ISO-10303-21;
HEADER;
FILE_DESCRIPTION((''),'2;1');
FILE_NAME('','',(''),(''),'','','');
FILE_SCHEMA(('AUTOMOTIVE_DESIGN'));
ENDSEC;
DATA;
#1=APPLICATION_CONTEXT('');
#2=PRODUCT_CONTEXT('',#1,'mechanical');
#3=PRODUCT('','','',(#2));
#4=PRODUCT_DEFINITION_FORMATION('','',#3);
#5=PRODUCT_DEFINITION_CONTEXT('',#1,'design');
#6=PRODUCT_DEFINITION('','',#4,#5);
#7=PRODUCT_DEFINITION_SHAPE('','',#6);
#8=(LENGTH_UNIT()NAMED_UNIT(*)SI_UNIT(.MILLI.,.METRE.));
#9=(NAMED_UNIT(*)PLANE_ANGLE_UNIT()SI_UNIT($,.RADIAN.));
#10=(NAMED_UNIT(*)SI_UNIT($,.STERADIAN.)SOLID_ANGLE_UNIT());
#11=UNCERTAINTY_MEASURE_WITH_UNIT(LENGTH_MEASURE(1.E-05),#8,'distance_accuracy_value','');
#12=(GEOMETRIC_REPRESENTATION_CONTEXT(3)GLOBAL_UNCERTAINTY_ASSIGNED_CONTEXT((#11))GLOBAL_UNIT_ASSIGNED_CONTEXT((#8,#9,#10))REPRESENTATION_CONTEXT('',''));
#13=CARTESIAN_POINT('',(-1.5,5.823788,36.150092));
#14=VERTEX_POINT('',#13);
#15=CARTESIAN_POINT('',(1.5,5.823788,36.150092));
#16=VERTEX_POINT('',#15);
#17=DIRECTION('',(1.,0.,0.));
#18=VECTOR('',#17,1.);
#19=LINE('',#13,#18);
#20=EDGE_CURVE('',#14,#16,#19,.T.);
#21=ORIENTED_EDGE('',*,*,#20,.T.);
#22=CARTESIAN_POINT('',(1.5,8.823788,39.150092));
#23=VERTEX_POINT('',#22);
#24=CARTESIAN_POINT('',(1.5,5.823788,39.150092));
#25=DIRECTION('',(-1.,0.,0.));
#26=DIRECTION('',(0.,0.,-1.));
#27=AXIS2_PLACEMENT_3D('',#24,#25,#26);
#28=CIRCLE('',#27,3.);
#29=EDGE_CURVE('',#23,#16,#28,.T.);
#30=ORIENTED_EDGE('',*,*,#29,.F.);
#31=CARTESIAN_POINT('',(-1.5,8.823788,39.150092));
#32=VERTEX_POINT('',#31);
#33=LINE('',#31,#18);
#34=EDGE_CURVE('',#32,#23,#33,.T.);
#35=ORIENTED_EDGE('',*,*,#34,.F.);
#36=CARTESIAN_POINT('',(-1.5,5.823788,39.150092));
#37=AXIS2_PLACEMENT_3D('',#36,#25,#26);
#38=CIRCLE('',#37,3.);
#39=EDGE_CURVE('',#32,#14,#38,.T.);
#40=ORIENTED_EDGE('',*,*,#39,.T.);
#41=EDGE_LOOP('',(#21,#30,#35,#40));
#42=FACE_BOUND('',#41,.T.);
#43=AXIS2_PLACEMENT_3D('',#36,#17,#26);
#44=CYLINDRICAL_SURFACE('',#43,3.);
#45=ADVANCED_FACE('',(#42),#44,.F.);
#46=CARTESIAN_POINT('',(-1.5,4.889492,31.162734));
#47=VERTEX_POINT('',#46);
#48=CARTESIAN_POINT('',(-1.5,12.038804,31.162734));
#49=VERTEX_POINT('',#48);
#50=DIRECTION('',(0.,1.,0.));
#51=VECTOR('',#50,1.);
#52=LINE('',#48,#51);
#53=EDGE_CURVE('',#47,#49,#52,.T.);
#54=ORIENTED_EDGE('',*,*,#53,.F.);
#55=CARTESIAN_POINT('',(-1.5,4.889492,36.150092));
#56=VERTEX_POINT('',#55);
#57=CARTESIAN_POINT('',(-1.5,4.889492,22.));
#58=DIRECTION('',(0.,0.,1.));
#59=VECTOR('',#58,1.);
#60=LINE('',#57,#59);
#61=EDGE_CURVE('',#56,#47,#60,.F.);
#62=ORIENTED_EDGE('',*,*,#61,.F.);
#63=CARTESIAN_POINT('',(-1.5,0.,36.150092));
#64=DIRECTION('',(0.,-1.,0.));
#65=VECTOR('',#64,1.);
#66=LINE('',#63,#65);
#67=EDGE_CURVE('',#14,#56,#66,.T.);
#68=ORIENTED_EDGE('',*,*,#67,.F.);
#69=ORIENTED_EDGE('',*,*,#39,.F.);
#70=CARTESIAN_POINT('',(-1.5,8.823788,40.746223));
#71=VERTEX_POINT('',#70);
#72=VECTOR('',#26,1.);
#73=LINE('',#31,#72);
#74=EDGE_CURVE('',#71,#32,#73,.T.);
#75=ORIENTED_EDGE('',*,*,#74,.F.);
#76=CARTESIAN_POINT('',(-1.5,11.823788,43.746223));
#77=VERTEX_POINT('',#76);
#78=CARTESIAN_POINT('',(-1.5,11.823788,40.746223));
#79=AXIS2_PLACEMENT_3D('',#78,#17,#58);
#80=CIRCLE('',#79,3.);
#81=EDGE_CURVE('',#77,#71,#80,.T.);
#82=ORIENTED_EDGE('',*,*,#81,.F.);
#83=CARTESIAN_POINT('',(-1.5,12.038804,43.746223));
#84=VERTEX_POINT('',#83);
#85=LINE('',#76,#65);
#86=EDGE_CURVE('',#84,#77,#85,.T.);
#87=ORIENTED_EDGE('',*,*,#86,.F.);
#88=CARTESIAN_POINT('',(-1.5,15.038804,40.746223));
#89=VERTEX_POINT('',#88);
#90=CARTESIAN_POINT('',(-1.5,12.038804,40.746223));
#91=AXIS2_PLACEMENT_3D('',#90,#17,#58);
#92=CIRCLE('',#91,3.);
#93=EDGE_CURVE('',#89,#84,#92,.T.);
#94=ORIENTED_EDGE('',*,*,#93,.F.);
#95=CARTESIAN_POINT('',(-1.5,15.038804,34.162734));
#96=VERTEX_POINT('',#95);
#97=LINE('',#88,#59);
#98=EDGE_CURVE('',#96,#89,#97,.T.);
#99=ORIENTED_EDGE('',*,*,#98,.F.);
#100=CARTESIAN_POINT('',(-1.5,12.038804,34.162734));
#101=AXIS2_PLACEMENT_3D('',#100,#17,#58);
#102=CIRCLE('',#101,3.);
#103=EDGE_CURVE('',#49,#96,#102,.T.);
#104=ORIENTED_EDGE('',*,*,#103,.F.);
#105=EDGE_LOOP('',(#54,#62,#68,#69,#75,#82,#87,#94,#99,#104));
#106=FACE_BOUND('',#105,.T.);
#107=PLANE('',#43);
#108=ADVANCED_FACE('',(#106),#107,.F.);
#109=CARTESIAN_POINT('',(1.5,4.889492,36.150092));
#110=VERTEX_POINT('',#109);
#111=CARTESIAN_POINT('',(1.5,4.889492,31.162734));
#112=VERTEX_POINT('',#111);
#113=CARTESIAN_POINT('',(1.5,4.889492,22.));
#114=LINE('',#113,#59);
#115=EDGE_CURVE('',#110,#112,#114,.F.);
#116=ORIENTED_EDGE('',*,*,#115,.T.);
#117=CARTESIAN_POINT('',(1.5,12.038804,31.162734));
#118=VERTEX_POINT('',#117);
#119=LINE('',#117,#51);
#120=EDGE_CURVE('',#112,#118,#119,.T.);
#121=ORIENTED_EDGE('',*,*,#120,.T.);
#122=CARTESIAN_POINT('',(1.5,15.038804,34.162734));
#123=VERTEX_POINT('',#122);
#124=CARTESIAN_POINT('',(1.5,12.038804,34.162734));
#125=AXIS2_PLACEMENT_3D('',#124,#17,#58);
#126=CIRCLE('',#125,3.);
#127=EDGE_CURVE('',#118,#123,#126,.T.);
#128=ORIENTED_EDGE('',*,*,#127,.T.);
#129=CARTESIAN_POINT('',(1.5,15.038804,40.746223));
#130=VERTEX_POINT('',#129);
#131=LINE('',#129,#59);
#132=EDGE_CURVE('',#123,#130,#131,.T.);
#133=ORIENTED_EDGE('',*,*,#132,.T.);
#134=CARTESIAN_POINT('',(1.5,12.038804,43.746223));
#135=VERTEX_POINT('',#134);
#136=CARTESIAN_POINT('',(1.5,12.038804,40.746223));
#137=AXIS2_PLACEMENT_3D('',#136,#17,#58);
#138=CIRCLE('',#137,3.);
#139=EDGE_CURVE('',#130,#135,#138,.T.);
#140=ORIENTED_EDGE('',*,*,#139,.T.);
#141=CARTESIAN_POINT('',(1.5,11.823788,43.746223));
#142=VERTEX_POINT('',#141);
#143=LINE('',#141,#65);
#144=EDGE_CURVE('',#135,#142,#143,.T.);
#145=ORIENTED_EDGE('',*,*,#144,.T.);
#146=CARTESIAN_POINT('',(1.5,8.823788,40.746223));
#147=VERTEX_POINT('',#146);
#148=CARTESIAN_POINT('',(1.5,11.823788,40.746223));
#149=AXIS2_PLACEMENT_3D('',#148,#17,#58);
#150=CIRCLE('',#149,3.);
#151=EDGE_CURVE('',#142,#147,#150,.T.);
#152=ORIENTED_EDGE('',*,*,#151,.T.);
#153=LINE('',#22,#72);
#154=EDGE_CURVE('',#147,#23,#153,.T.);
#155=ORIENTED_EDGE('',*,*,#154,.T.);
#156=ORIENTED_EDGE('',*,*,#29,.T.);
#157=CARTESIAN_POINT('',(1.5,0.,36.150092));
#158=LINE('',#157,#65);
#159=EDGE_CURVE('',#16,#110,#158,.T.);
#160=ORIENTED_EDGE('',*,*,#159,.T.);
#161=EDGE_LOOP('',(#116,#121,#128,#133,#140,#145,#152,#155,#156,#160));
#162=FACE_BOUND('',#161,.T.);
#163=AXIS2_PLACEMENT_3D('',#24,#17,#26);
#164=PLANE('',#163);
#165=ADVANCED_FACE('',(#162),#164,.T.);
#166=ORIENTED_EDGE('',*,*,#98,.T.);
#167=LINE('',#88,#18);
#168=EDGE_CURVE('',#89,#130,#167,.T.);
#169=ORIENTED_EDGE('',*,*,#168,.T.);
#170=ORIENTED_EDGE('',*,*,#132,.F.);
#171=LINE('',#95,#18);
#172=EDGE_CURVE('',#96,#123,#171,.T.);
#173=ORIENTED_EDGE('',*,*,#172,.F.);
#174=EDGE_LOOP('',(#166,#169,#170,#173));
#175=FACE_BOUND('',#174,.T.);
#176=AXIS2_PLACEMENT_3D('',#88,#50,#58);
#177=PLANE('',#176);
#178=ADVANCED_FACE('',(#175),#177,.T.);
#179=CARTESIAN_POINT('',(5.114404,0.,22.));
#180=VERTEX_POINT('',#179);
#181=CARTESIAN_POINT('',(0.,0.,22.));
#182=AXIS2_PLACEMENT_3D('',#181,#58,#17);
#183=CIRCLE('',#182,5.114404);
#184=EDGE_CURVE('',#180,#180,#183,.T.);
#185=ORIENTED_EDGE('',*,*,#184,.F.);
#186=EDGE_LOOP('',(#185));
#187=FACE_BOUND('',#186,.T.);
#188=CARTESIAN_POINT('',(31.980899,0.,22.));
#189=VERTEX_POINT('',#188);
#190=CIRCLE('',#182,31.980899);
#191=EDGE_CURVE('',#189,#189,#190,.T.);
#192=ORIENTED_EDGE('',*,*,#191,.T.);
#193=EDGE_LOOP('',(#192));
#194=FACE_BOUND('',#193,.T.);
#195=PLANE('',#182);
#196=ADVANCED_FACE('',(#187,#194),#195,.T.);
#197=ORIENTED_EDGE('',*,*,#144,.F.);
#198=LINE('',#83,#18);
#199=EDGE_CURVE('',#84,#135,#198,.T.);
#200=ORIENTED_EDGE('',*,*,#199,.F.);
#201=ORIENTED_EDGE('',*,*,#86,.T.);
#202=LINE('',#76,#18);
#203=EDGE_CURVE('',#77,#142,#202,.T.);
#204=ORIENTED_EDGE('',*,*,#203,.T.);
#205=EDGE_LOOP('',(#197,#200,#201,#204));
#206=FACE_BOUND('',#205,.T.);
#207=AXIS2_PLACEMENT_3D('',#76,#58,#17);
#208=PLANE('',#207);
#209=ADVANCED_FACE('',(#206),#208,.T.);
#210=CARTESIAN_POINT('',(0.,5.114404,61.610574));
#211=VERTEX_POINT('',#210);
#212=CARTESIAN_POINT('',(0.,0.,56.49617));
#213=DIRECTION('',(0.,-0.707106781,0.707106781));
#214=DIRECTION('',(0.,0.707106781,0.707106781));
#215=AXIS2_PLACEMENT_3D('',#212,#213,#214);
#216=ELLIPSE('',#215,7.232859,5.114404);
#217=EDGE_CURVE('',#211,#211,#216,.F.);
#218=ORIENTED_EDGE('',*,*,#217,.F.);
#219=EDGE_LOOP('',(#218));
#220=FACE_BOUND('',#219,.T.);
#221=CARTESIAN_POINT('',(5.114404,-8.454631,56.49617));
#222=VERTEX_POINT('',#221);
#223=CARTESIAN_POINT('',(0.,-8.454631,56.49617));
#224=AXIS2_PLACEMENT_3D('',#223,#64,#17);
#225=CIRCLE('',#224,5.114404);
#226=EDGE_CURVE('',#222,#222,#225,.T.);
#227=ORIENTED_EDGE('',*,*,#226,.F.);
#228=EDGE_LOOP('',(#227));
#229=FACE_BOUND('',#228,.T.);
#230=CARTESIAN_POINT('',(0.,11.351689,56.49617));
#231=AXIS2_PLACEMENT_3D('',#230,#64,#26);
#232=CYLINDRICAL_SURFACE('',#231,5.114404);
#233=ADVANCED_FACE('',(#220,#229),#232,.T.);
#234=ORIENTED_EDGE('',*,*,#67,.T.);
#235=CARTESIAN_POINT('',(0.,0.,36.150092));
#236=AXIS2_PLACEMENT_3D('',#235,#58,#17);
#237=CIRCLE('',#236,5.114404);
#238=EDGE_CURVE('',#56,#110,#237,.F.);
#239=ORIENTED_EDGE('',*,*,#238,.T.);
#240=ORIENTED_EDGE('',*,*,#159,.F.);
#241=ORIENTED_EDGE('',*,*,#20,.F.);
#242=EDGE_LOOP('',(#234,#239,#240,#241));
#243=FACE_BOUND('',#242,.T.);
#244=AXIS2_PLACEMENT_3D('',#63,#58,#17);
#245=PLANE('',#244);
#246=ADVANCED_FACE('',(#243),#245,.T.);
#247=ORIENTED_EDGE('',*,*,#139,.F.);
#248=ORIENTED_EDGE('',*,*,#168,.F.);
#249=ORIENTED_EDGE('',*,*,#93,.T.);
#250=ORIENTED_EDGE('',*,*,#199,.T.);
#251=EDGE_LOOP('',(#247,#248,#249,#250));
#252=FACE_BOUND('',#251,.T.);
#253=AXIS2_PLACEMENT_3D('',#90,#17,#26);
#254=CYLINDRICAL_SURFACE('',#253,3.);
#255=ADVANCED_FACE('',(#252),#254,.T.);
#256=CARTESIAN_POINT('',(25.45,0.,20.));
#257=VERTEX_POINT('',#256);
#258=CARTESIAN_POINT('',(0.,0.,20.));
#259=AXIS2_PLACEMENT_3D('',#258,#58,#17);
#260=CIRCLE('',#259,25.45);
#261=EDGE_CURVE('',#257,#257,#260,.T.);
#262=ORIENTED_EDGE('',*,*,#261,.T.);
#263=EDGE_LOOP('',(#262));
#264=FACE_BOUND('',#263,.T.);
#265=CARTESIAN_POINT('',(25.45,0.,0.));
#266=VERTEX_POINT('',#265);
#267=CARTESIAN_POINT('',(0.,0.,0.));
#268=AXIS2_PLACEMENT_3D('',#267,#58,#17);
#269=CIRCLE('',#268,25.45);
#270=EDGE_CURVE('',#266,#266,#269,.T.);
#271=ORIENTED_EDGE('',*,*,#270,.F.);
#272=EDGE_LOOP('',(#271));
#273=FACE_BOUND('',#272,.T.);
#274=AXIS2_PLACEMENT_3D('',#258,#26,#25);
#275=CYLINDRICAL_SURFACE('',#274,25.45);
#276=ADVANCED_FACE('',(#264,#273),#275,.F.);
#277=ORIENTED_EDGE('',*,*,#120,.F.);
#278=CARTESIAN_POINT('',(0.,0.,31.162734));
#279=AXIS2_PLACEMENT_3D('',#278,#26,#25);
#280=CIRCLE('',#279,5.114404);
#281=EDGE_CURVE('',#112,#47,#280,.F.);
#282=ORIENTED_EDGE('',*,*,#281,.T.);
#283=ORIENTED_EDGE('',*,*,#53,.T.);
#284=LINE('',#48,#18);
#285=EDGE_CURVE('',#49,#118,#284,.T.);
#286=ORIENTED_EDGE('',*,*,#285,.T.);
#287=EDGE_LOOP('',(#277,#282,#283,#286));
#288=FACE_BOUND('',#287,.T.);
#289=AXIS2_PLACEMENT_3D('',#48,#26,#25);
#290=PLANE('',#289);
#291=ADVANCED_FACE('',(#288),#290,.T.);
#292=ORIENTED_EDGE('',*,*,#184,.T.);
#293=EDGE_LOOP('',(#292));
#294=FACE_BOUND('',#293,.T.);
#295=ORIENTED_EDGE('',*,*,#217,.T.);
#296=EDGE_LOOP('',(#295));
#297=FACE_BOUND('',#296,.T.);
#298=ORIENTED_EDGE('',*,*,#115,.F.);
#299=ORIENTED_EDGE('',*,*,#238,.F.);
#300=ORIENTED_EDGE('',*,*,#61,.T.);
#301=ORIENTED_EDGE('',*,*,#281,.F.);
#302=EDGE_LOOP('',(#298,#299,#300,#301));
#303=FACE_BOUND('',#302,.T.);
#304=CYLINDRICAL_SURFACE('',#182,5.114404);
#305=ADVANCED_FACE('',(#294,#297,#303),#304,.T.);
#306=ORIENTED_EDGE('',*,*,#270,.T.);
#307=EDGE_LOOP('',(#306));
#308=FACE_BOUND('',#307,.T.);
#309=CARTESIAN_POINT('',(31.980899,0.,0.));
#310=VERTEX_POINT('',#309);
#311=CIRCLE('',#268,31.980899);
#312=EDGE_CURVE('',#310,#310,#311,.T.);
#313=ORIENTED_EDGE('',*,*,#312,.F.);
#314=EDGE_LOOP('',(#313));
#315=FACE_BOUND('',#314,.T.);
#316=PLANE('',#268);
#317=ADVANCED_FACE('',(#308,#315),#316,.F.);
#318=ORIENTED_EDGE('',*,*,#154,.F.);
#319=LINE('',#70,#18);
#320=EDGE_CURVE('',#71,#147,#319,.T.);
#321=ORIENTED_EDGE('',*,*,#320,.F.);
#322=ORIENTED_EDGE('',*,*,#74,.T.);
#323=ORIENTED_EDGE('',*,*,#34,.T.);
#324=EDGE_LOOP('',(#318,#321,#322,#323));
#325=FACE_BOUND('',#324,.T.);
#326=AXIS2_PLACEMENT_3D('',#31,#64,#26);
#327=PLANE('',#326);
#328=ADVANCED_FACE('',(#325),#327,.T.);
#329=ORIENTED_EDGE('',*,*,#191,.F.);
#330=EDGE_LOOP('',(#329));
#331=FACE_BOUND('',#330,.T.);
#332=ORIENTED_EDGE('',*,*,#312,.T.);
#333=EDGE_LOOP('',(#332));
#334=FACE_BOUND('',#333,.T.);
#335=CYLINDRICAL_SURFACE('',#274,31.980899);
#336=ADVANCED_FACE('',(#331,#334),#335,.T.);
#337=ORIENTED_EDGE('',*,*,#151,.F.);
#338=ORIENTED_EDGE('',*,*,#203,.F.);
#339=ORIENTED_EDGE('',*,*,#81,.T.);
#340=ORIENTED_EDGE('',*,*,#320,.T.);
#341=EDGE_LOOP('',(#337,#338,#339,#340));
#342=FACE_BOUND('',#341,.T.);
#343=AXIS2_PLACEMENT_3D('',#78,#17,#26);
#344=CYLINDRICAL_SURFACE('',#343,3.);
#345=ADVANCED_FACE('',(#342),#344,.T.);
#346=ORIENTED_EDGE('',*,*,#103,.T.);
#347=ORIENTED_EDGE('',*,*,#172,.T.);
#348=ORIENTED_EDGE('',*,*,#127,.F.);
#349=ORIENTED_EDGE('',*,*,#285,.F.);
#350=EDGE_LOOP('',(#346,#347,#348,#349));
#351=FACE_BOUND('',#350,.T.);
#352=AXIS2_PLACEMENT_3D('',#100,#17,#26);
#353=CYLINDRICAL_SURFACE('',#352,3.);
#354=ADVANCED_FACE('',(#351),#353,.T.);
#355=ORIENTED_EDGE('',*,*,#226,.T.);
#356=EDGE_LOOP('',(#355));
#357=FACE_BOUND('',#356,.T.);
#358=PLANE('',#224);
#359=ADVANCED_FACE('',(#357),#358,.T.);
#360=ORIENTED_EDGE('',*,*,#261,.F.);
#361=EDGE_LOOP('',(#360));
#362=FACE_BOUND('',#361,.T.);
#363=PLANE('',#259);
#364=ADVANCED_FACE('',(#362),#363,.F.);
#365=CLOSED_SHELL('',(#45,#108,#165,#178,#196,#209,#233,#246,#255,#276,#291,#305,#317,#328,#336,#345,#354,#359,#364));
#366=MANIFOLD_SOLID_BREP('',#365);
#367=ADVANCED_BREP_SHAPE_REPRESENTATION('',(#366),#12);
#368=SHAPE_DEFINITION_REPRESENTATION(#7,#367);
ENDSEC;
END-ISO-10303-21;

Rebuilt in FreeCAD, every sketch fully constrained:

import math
import FreeCAD as App
import Part
import Sketcher
from FreeCAD import Vector

doc = App.newDocument("Part")
body = doc.addObject("PartDesign::Body", "Body")

# Sketch on XY plane
sketch1 = doc.addObject("Sketcher::SketchObject", "Sketch")
body.addObject(sketch1)
sketch1.AttachmentSupport = (doc.XY_Plane, [""])
sketch1.MapMode = "FlatFace"
sketch1.addGeometry(Part.Circle(Vector(0, 0, 0), Vector(0, 0, 1), 32), False)
sketch1.addGeometry(Part.Circle(Vector(0, 0, 0), Vector(0, 0, 1), 25), False)
sketch1.addConstraint(Sketcher.Constraint("Coincident", 0, 3, -1, 1))
sketch1.addConstraint(Sketcher.Constraint("Coincident", 1, 3, -1, 1))
sketch1.addConstraint(Sketcher.Constraint("Diameter", 1, 50.9))
sketch1.addConstraint(Sketcher.Constraint("Diameter", 0, 63.961797))
pad1 = doc.addObject("PartDesign::Pad", "Pad")
body.addObject(pad1)
pad1.Profile = sketch1
pad1.Length = 20

# Sketch on XY plane
sketch2 = doc.addObject("Sketcher::SketchObject", "Sketch001")
body.addObject(sketch2)
sketch2.AttachmentSupport = (doc.XY_Plane, [""])
sketch2.MapMode = "FlatFace"
sketch2.AttachmentOffset = App.Placement(Vector(0, 0, 20), App.Rotation())
sketch2.addGeometry(Part.Circle(Vector(0, 0, 0), Vector(0, 0, 1), 32), False)
sketch2.addConstraint(Sketcher.Constraint("Coincident", 0, 3, -1, 1))
sketch2.addConstraint(Sketcher.Constraint("Diameter", 0, 63.961797))
pad2 = doc.addObject("PartDesign::Pad", "Pad001")
body.addObject(pad2)
pad2.Profile = sketch2
pad2.Length = 2

# Sketch on XY plane
sketch3 = doc.addObject("Sketcher::SketchObject", "Sketch002")
body.addObject(sketch3)
sketch3.AttachmentSupport = (doc.XY_Plane, [""])
sketch3.MapMode = "FlatFace"
sketch3.AttachmentOffset = App.Placement(Vector(0, 0, 22), App.Rotation())
sketch3.addGeometry(Part.Circle(Vector(0, 0, 0), Vector(0, 0, 1), 5), False)
sketch3.addConstraint(Sketcher.Constraint("Coincident", 0, 3, -1, 1))
sketch3.addConstraint(Sketcher.Constraint("Diameter", 0, 10.228808))

# Sketch on YZ plane
sketch4 = doc.addObject("Sketcher::SketchObject", "Sketch003")
body.addObject(sketch4)
sketch4.AttachmentSupport = (doc.YZ_Plane, [""])
sketch4.MapMode = "FlatFace"
sketch4.addGeometry(Part.LineSegment(Vector(0, 22, 0), Vector(0, 56, 0)), False)
sketch4.addGeometry(Part.LineSegment(Vector(0, 56, 0), Vector(-8, 56, 0)), False)
sketch4.addConstraint(Sketcher.Constraint("Coincident", 0, 2, 1, 1))
sketch4.addConstraint(Sketcher.Constraint("Vertical", 0))
sketch4.addConstraint(Sketcher.Constraint("Horizontal", 1))
sketch4.addConstraint(Sketcher.Constraint("PointOnObject", 0, 1, -2))
sketch4.addConstraint(Sketcher.Constraint("DistanceY", -1, 1, 0, 1, 22.0))
sketch4.addConstraint(Sketcher.Constraint("DistanceX", 1, 2, 1, 1, 8.454631))
sketch4.addConstraint(Sketcher.Constraint("DistanceY", 0, 1, 0, 2, 34.49617))
doc.recompute()

additivepipe = doc.addObject("PartDesign::AdditivePipe", "AdditivePipe")
body.addObject(additivepipe)
additivepipe.Profile = sketch3
additivepipe.Spine = (sketch4, ["Edge1", "Edge2"])
additivepipe.Transition = "Right corner"

# Sketch on YZ plane
sketch5 = doc.addObject("Sketcher::SketchObject", "Sketch004")
body.addObject(sketch5)
sketch5.AttachmentSupport = (doc.YZ_Plane, [""])
sketch5.MapMode = "FlatFace"
sketch5.addGeometry(Part.LineSegment(Vector(5.82, 36.15, 0), Vector(0, 36.15, 0)), False)
sketch5.addGeometry(Part.LineSegment(Vector(0, 36.15, 0), Vector(0, 31.16, 0)), False)
sketch5.addGeometry(Part.LineSegment(Vector(0, 31.16, 0), Vector(12.04, 31.16, 0)), False)
sketch5.addGeometry(Part.ArcOfCircle(Part.Circle(Vector(12.04, 34.16, 0), Vector(0, 0, 1), 3), math.radians(-90), math.radians(0)), False)
sketch5.addGeometry(Part.LineSegment(Vector(15.04, 34.16, 0), Vector(15.04, 40.75, 0)), False)
sketch5.addGeometry(Part.ArcOfCircle(Part.Circle(Vector(12.04, 40.75, 0), Vector(0, 0, 1), 3), math.radians(0), math.radians(90)), False)
sketch5.addGeometry(Part.LineSegment(Vector(12.04, 43.75, 0), Vector(11.82, 43.75, 0)), False)
sketch5.addGeometry(Part.ArcOfCircle(Part.Circle(Vector(11.82, 40.75, 0), Vector(0, 0, 1), 3), math.radians(90), math.radians(180)), False)
sketch5.addGeometry(Part.LineSegment(Vector(8.82, 40.75, 0), Vector(8.82, 39.15, 0)), False)
sketch5.addGeometry(Part.ArcOfCircle(Part.Circle(Vector(5.82, 39.15, 0), Vector(0, 0, 1), 3), math.radians(-90), math.radians(0)), False)
sketch5.addConstraint(Sketcher.Constraint("Coincident", 0, 2, 1, 1))
sketch5.addConstraint(Sketcher.Constraint("Coincident", 1, 2, 2, 1))
sketch5.addConstraint(Sketcher.Constraint("Tangent", 2, 2, 3, 1))
sketch5.addConstraint(Sketcher.Constraint("Tangent", 3, 2, 4, 1))
sketch5.addConstraint(Sketcher.Constraint("Tangent", 4, 2, 5, 1))
sketch5.addConstraint(Sketcher.Constraint("Tangent", 5, 2, 6, 1))
sketch5.addConstraint(Sketcher.Constraint("Tangent", 6, 2, 7, 1))
sketch5.addConstraint(Sketcher.Constraint("Tangent", 7, 2, 8, 1))
sketch5.addConstraint(Sketcher.Constraint("Tangent", 8, 2, 9, 2))
sketch5.addConstraint(Sketcher.Constraint("Tangent", 9, 1, 0, 1))
sketch5.addConstraint(Sketcher.Constraint("Horizontal", 0))
sketch5.addConstraint(Sketcher.Constraint("Vertical", 1))
sketch5.addConstraint(Sketcher.Constraint("Horizontal", 2))
sketch5.addConstraint(Sketcher.Constraint("Vertical", 4))
sketch5.addConstraint(Sketcher.Constraint("Horizontal", 6))
sketch5.addConstraint(Sketcher.Constraint("Vertical", 8))
sketch5.addConstraint(Sketcher.Constraint("Equal", 3, 5))
sketch5.addConstraint(Sketcher.Constraint("Equal", 5, 7))
sketch5.addConstraint(Sketcher.Constraint("Equal", 7, 9))
sketch5.addConstraint(Sketcher.Constraint("PointOnObject", 0, 2, -2))
sketch5.addConstraint(Sketcher.Constraint("Radius", 3, 3.0))
sketch5.addConstraint(Sketcher.Constraint("DistanceX", 0, 2, 0, 1, 5.823788))
sketch5.addConstraint(Sketcher.Constraint("DistanceY", 1, 2, 1, 1, 4.987359))
sketch5.addConstraint(Sketcher.Constraint("DistanceY", 4, 1, 4, 2, 6.583489))
sketch5.addConstraint(Sketcher.Constraint("DistanceX", 2, 1, 2, 2, 12.038804))
sketch5.addConstraint(Sketcher.Constraint("DistanceY", -1, 1, 3, 3, 34.162734))
pad3 = doc.addObject("PartDesign::Pad", "Pad002")
body.addObject(pad3)
pad3.Profile = sketch5
pad3.Type = "TwoLengths"
pad3.Length = 1.5
pad3.Length2 = 1.5

doc.recompute()
